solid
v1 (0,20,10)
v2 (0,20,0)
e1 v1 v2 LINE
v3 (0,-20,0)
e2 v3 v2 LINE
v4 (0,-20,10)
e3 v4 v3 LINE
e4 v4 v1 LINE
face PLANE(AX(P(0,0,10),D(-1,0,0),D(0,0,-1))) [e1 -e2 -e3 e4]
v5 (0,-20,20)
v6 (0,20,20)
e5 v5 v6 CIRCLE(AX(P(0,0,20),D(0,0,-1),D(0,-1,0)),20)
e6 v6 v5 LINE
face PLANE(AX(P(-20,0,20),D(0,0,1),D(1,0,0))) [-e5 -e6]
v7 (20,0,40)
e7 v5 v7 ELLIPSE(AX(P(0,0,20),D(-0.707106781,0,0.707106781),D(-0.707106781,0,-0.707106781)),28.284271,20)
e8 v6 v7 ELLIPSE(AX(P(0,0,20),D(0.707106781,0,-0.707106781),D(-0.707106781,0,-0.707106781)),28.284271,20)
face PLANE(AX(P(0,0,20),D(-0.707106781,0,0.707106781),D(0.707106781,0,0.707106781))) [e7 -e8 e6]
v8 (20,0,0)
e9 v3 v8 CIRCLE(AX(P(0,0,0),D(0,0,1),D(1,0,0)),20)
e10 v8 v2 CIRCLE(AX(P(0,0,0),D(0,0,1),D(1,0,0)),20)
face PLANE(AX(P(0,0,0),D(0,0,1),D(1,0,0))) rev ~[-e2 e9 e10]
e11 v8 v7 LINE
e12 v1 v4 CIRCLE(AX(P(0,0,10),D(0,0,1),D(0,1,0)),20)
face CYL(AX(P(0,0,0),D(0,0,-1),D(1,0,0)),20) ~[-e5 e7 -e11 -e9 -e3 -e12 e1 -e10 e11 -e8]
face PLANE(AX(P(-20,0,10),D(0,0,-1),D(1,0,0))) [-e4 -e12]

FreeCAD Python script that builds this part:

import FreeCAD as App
import Part
import Sketcher

V = App.Vector


def add_polygon(sketch, points):
    """Adds a closed chain of lines whose ends are joined by coincident constraints."""
    first, n = sketch.GeometryCount, len(points)
    for a, b in zip(points, points[1:] + points[:1]):
        sketch.addGeometry(Part.LineSegment(App.Vector(*a, 0), App.Vector(*b, 0)), False)
    for i in range(n):
        sketch.addConstraint(Sketcher.Constraint("Coincident", first + i, 2, first + (i + 1) % n, 1))

doc = App.newDocument("Part")
body = doc.addObject("PartDesign::Body", "Body")

# Sketch on XY plane
sketch1 = body.newObject("Sketcher::SketchObject", "Sketch")
sketch1.AttachmentSupport = (doc.getObject("XY_Plane"), [""])
sketch1.MapMode = "FlatFace"
sketch1.addGeometry(Part.Circle(V(0, 0, 0), V(0, 0, 1), 20), False)
sketch1.addConstraint([
    Sketcher.Constraint("Coincident", 0, 3, -1, 1),
    Sketcher.Constraint("Diameter", 0, 40.0),
])
pad1 = body.newObject("PartDesign::Pad", "Pad")
pad1.Profile = sketch1
pad1.Length = 40

# Sketch on XZ plane
sketch2 = body.newObject("Sketcher::SketchObject", "Sketch001")
sketch2.AttachmentSupport = (doc.getObject("XZ_Plane"), [""])
sketch2.MapMode = "FlatFace"
add_polygon(sketch2, [(0, 20), (-20, 20), (-20, 40), (20, 40)])  # lines 0-3
add_polygon(sketch2, [(-20, 0), (-20, 10), (0, 10), (0, 0)])  # lines 4-7
sketch2.addConstraint([
    Sketcher.Constraint("Horizontal", 0),
    Sketcher.Constraint("Vertical", 1),
    Sketcher.Constraint("Horizontal", 2),
    Sketcher.Constraint("Vertical", 4),
    Sketcher.Constraint("Horizontal", 5),
    Sketcher.Constraint("Vertical", 6),
    Sketcher.Constraint("Horizontal", 7),
    Sketcher.Constraint("Coincident", 6, 2, -1, 1),
    Sketcher.Constraint("PointOnObject", 3, 2, -2),
    Sketcher.Constraint("Vertical", 1, 2, 4, 2),
    Sketcher.Constraint("Equal", 7, 1),
    Sketcher.Constraint("DistanceX", 0, 2, 0, 1, 20.0),
    Sketcher.Constraint("DistanceX", 2, 1, 2, 2, 40.0),
    Sketcher.Constraint("DistanceY", 4, 1, 4, 2, 10.0),
    Sketcher.Constraint("DistanceY", -1, 1, 0, 2, 20.0),
])
pocket1 = body.newObject("PartDesign::Pocket", "Pocket")
pocket1.Profile = sketch2
pocket1.Type = "ThroughAll"
pocket1.Midplane = True

doc.recompute()
